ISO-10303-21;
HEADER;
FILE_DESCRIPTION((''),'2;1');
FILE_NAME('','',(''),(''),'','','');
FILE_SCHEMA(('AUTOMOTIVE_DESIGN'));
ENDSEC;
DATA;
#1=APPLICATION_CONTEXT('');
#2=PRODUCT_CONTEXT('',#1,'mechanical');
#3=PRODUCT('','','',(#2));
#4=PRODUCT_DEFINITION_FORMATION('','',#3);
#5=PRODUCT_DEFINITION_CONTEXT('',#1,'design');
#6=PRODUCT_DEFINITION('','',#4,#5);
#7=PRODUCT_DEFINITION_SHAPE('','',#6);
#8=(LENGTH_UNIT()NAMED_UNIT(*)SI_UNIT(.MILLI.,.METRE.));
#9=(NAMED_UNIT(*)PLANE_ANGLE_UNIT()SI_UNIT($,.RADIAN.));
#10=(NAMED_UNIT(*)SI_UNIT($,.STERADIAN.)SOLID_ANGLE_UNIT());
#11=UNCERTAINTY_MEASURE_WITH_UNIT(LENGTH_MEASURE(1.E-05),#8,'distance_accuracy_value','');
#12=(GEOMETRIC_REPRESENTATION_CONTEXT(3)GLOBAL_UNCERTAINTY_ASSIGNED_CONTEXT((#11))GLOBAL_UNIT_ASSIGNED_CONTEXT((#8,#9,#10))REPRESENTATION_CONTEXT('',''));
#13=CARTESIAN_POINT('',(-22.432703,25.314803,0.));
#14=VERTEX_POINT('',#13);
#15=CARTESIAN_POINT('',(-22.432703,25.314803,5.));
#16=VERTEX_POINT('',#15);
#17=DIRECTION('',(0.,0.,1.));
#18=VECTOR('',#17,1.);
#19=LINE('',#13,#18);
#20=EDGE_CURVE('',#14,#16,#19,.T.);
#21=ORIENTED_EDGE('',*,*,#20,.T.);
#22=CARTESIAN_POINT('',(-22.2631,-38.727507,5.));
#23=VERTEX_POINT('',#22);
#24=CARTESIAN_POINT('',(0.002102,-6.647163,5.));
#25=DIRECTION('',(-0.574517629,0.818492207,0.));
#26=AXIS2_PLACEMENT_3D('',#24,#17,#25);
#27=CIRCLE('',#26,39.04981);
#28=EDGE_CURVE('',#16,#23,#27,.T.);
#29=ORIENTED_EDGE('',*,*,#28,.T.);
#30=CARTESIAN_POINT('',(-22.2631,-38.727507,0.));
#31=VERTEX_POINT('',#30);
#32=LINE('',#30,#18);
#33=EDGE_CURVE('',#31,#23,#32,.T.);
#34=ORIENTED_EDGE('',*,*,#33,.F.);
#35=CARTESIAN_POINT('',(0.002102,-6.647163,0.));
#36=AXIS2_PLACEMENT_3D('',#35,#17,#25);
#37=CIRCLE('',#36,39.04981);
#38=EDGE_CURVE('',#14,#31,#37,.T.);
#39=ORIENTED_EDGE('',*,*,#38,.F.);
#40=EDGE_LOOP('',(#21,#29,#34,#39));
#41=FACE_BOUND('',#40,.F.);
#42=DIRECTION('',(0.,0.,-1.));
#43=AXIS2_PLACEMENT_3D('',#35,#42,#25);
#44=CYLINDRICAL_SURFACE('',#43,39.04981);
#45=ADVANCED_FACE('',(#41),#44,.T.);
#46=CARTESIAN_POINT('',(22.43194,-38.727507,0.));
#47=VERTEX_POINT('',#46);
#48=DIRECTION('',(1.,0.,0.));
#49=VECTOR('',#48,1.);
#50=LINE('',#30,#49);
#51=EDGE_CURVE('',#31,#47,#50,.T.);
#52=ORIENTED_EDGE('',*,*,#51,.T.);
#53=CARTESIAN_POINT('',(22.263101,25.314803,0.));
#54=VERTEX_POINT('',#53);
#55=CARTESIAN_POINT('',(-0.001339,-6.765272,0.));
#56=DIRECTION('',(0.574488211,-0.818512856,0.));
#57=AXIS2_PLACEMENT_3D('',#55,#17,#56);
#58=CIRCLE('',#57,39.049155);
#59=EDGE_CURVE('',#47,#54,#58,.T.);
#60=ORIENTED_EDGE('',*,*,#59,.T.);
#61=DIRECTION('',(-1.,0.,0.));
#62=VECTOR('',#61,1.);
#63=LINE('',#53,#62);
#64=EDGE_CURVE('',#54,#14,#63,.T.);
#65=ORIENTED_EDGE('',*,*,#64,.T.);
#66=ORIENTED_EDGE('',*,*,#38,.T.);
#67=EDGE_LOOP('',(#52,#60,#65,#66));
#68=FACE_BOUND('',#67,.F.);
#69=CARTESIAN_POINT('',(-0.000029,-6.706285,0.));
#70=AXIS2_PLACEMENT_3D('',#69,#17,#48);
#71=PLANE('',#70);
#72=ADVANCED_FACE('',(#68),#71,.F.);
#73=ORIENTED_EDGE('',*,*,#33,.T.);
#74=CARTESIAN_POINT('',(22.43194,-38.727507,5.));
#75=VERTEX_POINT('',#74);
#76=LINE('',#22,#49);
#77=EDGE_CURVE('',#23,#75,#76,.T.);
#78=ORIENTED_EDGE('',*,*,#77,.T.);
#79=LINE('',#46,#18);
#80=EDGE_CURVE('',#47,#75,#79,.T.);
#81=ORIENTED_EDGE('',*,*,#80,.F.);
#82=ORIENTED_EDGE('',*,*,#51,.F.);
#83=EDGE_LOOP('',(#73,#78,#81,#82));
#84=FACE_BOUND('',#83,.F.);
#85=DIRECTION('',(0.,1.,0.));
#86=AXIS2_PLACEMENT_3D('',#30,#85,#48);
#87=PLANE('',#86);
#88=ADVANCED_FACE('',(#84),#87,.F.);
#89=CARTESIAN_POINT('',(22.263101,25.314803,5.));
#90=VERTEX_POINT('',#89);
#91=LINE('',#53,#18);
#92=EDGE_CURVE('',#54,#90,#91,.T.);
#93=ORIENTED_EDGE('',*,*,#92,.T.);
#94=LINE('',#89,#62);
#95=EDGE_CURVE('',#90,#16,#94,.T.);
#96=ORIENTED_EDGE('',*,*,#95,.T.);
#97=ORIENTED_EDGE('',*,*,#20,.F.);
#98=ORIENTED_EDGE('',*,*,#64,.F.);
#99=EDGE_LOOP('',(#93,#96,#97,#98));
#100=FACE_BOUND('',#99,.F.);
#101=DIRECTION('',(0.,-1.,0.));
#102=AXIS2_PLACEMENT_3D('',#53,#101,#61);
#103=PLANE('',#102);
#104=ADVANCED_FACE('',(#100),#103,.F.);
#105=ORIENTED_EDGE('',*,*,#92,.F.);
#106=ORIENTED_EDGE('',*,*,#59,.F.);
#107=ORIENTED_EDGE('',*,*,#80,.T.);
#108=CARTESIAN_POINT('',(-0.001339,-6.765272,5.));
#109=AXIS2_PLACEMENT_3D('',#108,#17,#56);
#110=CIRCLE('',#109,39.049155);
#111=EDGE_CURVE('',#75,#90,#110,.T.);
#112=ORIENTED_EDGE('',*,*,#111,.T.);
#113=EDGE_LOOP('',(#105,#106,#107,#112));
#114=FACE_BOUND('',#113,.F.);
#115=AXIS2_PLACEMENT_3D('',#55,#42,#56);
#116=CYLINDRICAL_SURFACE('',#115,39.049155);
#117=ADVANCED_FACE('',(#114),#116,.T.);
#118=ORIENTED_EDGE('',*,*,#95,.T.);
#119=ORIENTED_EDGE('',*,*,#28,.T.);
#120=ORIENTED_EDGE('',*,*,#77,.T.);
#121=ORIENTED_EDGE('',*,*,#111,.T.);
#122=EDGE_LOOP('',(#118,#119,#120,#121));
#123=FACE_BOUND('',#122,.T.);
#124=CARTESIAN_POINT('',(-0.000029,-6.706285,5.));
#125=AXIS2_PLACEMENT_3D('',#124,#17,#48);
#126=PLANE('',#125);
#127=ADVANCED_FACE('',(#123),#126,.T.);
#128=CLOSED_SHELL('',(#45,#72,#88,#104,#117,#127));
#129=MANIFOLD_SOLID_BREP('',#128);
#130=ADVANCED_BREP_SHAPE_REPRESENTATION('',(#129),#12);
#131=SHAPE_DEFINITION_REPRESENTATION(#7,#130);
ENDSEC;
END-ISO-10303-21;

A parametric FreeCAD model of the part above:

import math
import FreeCAD as App
import Part
import Sketcher

V = App.Vector

doc = App.newDocument("Part")
params = doc.addObject("Spreadsheet::Sheet", "Params")
for row, (alias, value) in enumerate([
    ("pad1_length", "5 mm"),
], start=1):
    params.set(f"A{row}", alias)
    params.set(f"B{row}", "=" + value)
    params.setAlias(f"B{row}", alias)

body = doc.addObject("PartDesign::Body", "Body")

sketch1 = doc.addObject("Sketcher::SketchObject", "Sketch")
body.addObject(sketch1)
sketch1.AttachmentSupport = (doc.XY_Plane, [""])
sketch1.MapMode = "FlatFace"
sketch1.addGeometry(Part.ArcOfCircle(Part.Circle(V(0, -7, 0), V(0, 0, 1), 39), math.radians(-55), math.radians(55)), False)
sketch1.addGeometry(Part.LineSegment(V(22, 25, 0), V(-22, 25, 0)), False)
sketch1.addGeometry(Part.ArcOfCircle(Part.Circle(V(0, -7, 0), V(0, 0, 1), 39), math.radians(125), math.radians(235)), False)
sketch1.addGeometry(Part.LineSegment(V(-22, -39, 0), V(22, -39, 0)), False)
sketch1.addConstraint(Sketcher.Constraint("Coincident", 0, 2, 1, 1))
sketch1.addConstraint(Sketcher.Constraint("Coincident", 1, 2, 2, 1))
sketch1.addConstraint(Sketcher.Constraint("Coincident", 2, 2, 3, 1))
sketch1.addConstraint(Sketcher.Constraint("Coincident", 3, 2, 0, 1))
sketch1.addConstraint(Sketcher.Constraint("Horizontal", 1))
sketch1.addConstraint(Sketcher.Constraint("Horizontal", 3))
sketch1.addConstraint(Sketcher.Constraint("Radius", 2, 39.04981))
sketch1.addConstraint(Sketcher.Constraint("Radius", 0, 39.049155))
sketch1.addConstraint(Sketcher.Constraint("DistanceX", 2, 3, 0, 2, 22.260999))
sketch1.addConstraint(Sketcher.Constraint("DistanceX", 3, 1, 3, 2, 44.69504))
sketch1.addConstraint(Sketcher.Constraint("DistanceX", -1, 1, 2, 3, 0.002102))
sketch1.addConstraint(Sketcher.Constraint("DistanceX", 2, 2, -1, 1, 22.2631))
sketch1.addConstraint(Sketcher.Constraint("DistanceX", 1, 2, 1, 1, 44.695804))
sketch1.addConstraint(Sketcher.Constraint("DistanceY", 0, 3, -1, 1, 6.765272))
pad1 = doc.addObject("PartDesign::Pad", "Pad")
body.addObject(pad1)
pad1.Profile = sketch1
pad1.setExpression("Length", "Params.pad1_length")

doc.recompute()
